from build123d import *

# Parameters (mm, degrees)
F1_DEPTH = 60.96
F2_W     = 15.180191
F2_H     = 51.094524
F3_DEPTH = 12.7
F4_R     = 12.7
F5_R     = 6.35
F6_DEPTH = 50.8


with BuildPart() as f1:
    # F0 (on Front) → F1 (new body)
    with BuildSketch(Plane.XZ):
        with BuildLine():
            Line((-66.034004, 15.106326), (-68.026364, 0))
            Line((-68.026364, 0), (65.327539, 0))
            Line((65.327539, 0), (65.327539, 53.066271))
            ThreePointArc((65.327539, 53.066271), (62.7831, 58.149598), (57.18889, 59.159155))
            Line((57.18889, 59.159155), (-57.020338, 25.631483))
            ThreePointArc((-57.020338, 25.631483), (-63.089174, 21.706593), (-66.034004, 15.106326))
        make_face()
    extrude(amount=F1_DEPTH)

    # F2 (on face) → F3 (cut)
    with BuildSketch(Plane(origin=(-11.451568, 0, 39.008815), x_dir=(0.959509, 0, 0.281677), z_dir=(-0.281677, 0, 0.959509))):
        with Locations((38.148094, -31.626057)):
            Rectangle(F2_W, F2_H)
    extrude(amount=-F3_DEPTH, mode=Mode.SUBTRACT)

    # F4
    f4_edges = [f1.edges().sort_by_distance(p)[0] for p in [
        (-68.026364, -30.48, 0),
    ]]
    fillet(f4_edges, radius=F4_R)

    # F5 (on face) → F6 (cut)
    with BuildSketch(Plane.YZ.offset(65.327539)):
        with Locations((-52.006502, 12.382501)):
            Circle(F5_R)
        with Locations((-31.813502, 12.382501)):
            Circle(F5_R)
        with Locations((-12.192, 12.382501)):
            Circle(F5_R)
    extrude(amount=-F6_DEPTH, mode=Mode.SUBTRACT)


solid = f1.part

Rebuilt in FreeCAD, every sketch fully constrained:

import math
import FreeCAD as App
import Part
import Sketcher

V = App.Vector
Q = App.Units.Quantity


def edges_at(feature, points):
    """Names of the edges that pass closest to the given points."""
    edges = feature.Shape.Edges
    near = lambda p: min(range(len(edges)), key=lambda i: edges[i].distToShape(Part.Vertex(*p))[0])
    return sorted({f"Edge{near(p) + 1}" for p in points})

doc = App.newDocument("Part")
body = doc.addObject("PartDesign::Body", "Body")

sketch1 = body.newObject("Sketcher::SketchObject", "Sketch")
sketch1.AttachmentSupport = (doc.getObject("XZ_Plane"), [""])
sketch1.MapMode = "FlatFace"
sketch1.addGeometry(Part.LineSegment(V(-66, 15, 0), V(-68, 0, 0)), False)
sketch1.addGeometry(Part.LineSegment(V(-68, 0, 0), V(65, 0, 0)), False)
sketch1.addGeometry(Part.LineSegment(V(65, 0, 0), V(65, 53, 0)), False)
sketch1.addGeometry(Part.ArcOfCircle(Part.Circle(V(59, 53, 0), V(0, 0, 1), 6), math.radians(0), math.radians(106)), False)
sketch1.addGeometry(Part.LineSegment(V(57, 59, 0), V(-57, 26, 0)), False)
sketch1.addGeometry(Part.ArcOfCircle(Part.Circle(V(-53, 13, 0), V(0, 0, 1), 13), math.radians(106), math.radians(172)), False)
sketch1.addConstraint(Sketcher.Constraint("Coincident", 0, 2, 1, 1))
sketch1.addConstraint(Sketcher.Constraint("Coincident", 1, 2, 2, 1))
sketch1.addConstraint(Sketcher.Constraint("Tangent", 2, 2, 3, 1))
sketch1.addConstraint(Sketcher.Constraint("Tangent", 3, 2, 4, 1))
sketch1.addConstraint(Sketcher.Constraint("Tangent", 4, 2, 5, 1))
sketch1.addConstraint(Sketcher.Constraint("Tangent", 5, 2, 0, 1))
sketch1.addConstraint(Sketcher.Constraint("Horizontal", 1))
sketch1.addConstraint(Sketcher.Constraint("Vertical", 2))
sketch1.addConstraint(Sketcher.Constraint("PointOnObject", 0, 2, -1))
sketch1.addConstraint(Sketcher.Constraint("Radius", 5, Q("0.5 in")))
sketch1.addConstraint(Sketcher.Constraint("Radius", 3, Q("0.25 in")))
sketch1.addConstraint(Sketcher.Constraint("DistanceY", 2, 1, 2, 2, 53.066271))
sketch1.addConstraint(Sketcher.Constraint("Distance", 4, 119.028789))
sketch1.addConstraint(Sketcher.Constraint("DistanceX", 1, 1, 1, 2, 133.353903))
sketch1.addConstraint(Sketcher.Constraint("DistanceX", -1, 1, 3, 3, 58.97754))
sketch1.addConstraint(Sketcher.Constraint("DistanceX", 5, 3, -1, 1, 53.443041))
pad1 = body.newObject("PartDesign::Pad", "Pad")
pad1.Profile = sketch1
pad1.Length = Q("2.4 in")

sketch2 = body.newObject("Sketcher::SketchObject", "Sketch001")
sketch2.Placement = App.Placement(V(-11.451568, 0, 39.008815), App.Rotation(V(0.959509262, 0, 0.281677077), V(0, 1, 0), V(-0.281677077, 0, 0.959509262), "ZXY"))
sketch2.addGeometry(Part.LineSegment(V(31, -6, 0), V(31, -57, 0)), False)
sketch2.addGeometry(Part.LineSegment(V(31, -57, 0), V(46, -57, 0)), False)
sketch2.addGeometry(Part.LineSegment(V(46, -57, 0), V(46, -6, 0)), False)
sketch2.addGeometry(Part.LineSegment(V(46, -6, 0), V(31, -6, 0)), False)
sketch2.addConstraint(Sketcher.Constraint("Coincident", 0, 2, 1, 1))
sketch2.addConstraint(Sketcher.Constraint("Coincident", 1, 2, 2, 1))
sketch2.addConstraint(Sketcher.Constraint("Coincident", 2, 2, 3, 1))
sketch2.addConstraint(Sketcher.Constraint("Coincident", 3, 2, 0, 1))
sketch2.addConstraint(Sketcher.Constraint("Vertical", 0))
sketch2.addConstraint(Sketcher.Constraint("Horizontal", 1))
sketch2.addConstraint(Sketcher.Constraint("Vertical", 2))
sketch2.addConstraint(Sketcher.Constraint("Horizontal", 3))
sketch2.addConstraint(Sketcher.Constraint("DistanceX", 1, 1, 1, 2, 15.180191))
sketch2.addConstraint(Sketcher.Constraint("DistanceX", -1, 1, 0, 2, 30.557998))
sketch2.addConstraint(Sketcher.Constraint("DistanceY", 0, 2, 0, 1, 51.094524))
sketch2.addConstraint(Sketcher.Constraint("DistanceY", 0, 2, -1, 1, 57.173319))
pocket1 = body.newObject("PartDesign::Pocket", "Pocket")
pocket1.Profile = sketch2
pocket1.Length = Q("0.5 in")
doc.recompute()

fillet = body.newObject("PartDesign::Fillet", "Fillet")
fillet.Base = (pocket1, edges_at(pocket1, [(-68.026, -30.48, 0)]))
fillet.Radius = Q("0.5 in")

sketch3 = body.newObject("Sketcher::SketchObject", "Sketch002")
sketch3.AttachmentSupport = (doc.getObject("YZ_Plane"), [""])
sketch3.MapMode = "FlatFace"
sketch3.AttachmentOffset = App.Placement(V(0, 0, 65.327539), App.Rotation())
sketch3.addGeometry(Part.Circle(V(-52, 12, 0), V(0, 0, 1), 6), False)
sketch3.addGeometry(Part.Circle(V(-32, 12, 0), V(0, 0, 1), 6), False)
sketch3.addGeometry(Part.Circle(V(-12, 12, 0), V(0, 0, 1), 6), False)
sketch3.addConstraint(Sketcher.Constraint("Equal", 0, 1))
sketch3.addConstraint(Sketcher.Constraint("Equal", 1, 2))
sketch3.addConstraint(Sketcher.Constraint("Horizontal", 0, 3, 1, 3))
sketch3.addConstraint(Sketcher.Constraint("Horizontal", 1, 3, 2, 3))
sketch3.addConstraint(Sketcher.Constraint("Diameter", 0, Q("0.5 in")))
sketch3.addConstraint(Sketcher.Constraint("DistanceX", 2, 3, -1, 1, Q("0.48 in")))
sketch3.addConstraint(Sketcher.Constraint("DistanceX", 0, 3, 1, 3, Q("0.795 in")))
sketch3.addConstraint(Sketcher.Constraint("DistanceX", 0, 3, -1, 1, Q("2.0475001 in")))
sketch3.addConstraint(Sketcher.Constraint("DistanceY", -1, 1, 0, 3, Q("0.4875 in")))
pocket2 = body.newObject("PartDesign::Pocket", "Pocket001")
pocket2.Profile = sketch3
pocket2.Length = Q("2 in")

doc.recompute()
